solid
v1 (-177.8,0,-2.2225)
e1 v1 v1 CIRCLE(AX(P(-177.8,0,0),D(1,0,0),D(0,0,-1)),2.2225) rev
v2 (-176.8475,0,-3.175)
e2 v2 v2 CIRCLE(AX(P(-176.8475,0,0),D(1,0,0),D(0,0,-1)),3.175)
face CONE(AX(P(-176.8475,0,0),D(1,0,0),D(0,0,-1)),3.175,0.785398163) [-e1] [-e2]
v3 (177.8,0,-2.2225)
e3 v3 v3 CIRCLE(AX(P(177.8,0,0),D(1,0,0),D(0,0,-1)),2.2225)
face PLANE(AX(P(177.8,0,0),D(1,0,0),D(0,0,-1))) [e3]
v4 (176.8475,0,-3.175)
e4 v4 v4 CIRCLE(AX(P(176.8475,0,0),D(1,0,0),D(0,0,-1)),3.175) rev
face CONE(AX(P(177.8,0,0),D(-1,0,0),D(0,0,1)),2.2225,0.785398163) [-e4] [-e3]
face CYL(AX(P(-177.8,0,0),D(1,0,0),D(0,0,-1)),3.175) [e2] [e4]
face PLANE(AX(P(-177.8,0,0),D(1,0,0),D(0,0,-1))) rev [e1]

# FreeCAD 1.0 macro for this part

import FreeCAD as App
import Part
import Sketcher
from FreeCAD import Vector
Q = App.Units.Quantity


def edges_at(feature, points):
    """Names of the edges that pass closest to the given points."""
    edges = feature.Shape.Edges
    near = lambda p: min(range(len(edges)), key=lambda i: edges[i].distToShape(Part.Vertex(*p))[0])
    return sorted({f"Edge{near(p) + 1}" for p in points})

doc = App.newDocument("Part")
body = doc.addObject("PartDesign::Body", "Body")

# Sketch on YZ plane
sketch1 = body.newObject("Sketcher::SketchObject", "Sketch")
sketch1.AttachmentSupport = (doc.getObject("YZ_Plane"), [""])
sketch1.MapMode = "FlatFace"
sketch1.addGeometry(Part.Circle(Vector(0, 0, 0), Vector(0, 0, 1), 3.2), False)
sketch1.addConstraint(Sketcher.Constraint("Coincident", 0, 3, -1, 1))
sketch1.addConstraint(Sketcher.Constraint("Diameter", 0, Q("0.25 in")))
pad1 = body.newObject("PartDesign::Pad", "Pad")
pad1.Profile = sketch1
pad1.Type = "TwoLengths"
pad1.Length = Q("7 in")
pad1.Length2 = Q("7 in")
doc.recompute()

chamfer = body.newObject("PartDesign::Chamfer", "Chamfer")
chamfer.Base = (pad1, edges_at(pad1, [(-177.8, 0, 3.175), (177.8, 0, 3.175)]))
chamfer.Size = Q("0.0375 in")

doc.recompute()
